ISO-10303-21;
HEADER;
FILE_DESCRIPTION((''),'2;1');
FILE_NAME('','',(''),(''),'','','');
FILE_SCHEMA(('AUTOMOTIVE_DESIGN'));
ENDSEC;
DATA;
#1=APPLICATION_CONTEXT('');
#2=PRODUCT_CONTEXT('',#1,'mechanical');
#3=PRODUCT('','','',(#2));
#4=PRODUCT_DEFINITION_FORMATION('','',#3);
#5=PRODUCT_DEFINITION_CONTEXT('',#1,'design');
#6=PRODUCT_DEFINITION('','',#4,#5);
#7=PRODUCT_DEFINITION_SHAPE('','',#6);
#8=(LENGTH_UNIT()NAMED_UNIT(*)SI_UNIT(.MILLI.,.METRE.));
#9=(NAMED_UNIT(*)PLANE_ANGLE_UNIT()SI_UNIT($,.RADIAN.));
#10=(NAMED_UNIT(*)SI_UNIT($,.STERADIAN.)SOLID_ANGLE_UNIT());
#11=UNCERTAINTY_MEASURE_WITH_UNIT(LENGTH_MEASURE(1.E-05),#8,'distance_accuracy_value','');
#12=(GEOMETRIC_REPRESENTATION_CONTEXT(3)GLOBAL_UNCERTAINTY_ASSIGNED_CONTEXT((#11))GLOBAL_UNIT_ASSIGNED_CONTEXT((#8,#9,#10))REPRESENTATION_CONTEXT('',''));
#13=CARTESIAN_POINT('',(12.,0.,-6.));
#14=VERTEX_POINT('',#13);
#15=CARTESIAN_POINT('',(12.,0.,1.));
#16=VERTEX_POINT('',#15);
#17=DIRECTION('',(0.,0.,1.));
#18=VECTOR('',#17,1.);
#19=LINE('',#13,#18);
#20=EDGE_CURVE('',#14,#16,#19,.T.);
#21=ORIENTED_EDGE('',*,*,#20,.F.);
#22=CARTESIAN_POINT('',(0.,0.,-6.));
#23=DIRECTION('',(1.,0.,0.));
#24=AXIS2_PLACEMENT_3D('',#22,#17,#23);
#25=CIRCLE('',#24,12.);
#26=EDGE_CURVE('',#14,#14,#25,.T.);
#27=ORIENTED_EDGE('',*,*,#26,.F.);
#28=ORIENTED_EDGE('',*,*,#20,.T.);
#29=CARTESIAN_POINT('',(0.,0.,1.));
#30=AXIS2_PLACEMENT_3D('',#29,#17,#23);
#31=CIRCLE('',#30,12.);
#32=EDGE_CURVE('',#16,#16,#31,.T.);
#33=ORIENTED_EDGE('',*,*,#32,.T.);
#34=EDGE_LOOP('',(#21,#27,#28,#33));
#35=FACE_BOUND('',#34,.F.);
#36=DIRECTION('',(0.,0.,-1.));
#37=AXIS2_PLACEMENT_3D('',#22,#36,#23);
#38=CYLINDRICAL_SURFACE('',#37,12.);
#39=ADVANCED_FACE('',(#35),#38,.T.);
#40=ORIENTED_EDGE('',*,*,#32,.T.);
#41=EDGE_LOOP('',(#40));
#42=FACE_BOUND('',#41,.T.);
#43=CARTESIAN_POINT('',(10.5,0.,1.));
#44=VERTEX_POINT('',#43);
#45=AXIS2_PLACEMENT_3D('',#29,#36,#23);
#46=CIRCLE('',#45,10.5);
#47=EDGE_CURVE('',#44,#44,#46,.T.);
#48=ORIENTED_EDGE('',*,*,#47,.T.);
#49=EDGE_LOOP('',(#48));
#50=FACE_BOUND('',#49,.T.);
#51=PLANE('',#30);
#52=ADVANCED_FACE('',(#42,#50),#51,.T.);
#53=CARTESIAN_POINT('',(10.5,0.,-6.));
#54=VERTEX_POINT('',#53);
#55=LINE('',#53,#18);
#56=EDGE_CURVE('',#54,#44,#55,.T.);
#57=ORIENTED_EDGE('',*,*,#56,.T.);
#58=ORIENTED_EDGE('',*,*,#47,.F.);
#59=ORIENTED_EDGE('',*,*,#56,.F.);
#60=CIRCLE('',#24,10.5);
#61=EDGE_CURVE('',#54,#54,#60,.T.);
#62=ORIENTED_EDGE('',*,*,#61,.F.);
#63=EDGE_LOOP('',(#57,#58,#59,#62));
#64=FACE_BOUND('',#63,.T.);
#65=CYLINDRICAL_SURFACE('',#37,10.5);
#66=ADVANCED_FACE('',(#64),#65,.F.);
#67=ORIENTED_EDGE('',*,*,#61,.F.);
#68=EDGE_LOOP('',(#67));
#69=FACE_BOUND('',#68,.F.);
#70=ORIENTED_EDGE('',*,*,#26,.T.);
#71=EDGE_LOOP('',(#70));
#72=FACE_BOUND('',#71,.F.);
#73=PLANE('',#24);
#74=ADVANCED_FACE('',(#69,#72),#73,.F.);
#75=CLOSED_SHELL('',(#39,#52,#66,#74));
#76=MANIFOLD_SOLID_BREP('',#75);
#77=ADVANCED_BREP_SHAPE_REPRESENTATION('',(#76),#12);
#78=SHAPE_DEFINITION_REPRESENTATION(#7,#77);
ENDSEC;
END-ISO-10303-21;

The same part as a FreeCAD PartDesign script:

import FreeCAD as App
import Part
import Sketcher
Q = App.Units.Quantity

doc = App.newDocument("Part")
body = doc.addObject("PartDesign::Body", "Body")

# Sketch on XY plane
sketch1 = doc.addObject("Sketcher::SketchObject", "Sketch")
body.addObject(sketch1)
sketch1.AttachmentSupport = (doc.XY_Plane, [""])
sketch1.MapMode = "FlatFace"
sketch1.AttachmentOffset = App.Placement(App.Vector(0, 0, -6), App.Rotation())
sketch1.addGeometry(Part.Circle(App.Vector(0, 0, 0), App.Vector(0, 0, 1), 10), False)
sketch1.addConstraint([
    Sketcher.Constraint("Coincident", 0, 3, -1, 1),
    Sketcher.Constraint("Diameter", 0, Q("21 mm")),
])
pad1 = doc.addObject("PartDesign::Pad", "Pad")
body.addObject(pad1)
pad1.Profile = sketch1
pad1.Length = 13
body2 = doc.addObject("PartDesign::Body", "Body001")

# Sketch on XY plane
sketch2 = doc.addObject("Sketcher::SketchObject", "Sketch001")
body2.addObject(sketch2)
sketch2.AttachmentSupport = (doc.getObject("XY_Plane001"), [""])
sketch2.MapMode = "FlatFace"
sketch2.AttachmentOffset = App.Placement(App.Vector(0, 0, -6), App.Rotation())
sketch2.addGeometry(Part.Circle(App.Vector(0, 0, 0), App.Vector(0, 0, 1), 12), False)
sketch2.addConstraint([
    Sketcher.Constraint("Coincident", 0, 3, -1, 1),
    Sketcher.Constraint("Diameter", 0, Q("24 mm")),
])
pad2 = doc.addObject("PartDesign::Pad", "Pad001")
body2.addObject(pad2)
pad2.Profile = sketch2
pad2.Length = 7
doc.recompute()

boolean = doc.addObject("PartDesign::Boolean", "Boolean")
body2.addObject(boolean)
boolean.Type = "Cut"
boolean.addObjects([body])

doc.recompute()
